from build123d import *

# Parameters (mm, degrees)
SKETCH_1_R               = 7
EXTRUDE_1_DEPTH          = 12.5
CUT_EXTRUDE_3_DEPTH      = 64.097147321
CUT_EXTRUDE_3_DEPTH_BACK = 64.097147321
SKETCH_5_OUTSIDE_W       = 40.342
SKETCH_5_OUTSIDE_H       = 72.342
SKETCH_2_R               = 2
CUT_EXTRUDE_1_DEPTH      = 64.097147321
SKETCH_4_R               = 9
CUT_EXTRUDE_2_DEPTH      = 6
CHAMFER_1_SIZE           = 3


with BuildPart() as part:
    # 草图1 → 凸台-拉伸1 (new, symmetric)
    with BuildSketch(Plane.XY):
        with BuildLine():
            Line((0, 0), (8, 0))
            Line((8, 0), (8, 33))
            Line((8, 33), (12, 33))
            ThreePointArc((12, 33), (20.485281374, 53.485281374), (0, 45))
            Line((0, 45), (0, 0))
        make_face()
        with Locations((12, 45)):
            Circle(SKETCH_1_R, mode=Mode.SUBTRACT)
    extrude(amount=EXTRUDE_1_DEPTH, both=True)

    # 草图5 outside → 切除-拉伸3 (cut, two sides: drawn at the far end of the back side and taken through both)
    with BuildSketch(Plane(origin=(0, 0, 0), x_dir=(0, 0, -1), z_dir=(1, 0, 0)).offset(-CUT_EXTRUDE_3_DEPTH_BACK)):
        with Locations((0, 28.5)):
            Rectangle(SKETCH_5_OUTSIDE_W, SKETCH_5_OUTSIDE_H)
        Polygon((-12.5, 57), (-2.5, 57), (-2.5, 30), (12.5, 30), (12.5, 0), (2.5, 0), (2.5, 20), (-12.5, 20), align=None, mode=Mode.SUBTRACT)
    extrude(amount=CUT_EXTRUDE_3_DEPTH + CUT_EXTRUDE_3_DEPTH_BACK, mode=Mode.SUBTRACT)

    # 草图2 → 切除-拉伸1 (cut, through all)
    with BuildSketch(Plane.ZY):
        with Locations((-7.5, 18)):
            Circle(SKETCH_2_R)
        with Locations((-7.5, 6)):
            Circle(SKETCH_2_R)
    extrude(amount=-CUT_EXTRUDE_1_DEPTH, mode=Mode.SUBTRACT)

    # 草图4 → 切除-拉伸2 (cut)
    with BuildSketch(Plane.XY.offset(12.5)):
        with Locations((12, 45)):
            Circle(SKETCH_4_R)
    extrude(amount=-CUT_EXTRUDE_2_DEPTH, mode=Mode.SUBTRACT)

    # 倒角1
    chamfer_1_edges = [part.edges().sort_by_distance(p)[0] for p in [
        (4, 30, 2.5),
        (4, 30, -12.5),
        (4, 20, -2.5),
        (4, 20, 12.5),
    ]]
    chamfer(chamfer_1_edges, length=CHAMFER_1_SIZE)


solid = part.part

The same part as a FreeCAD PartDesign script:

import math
import FreeCAD as App
import Part
import Sketcher


def edges_at(feature, points):
    """Names of the edges that pass closest to the given points."""
    edges = feature.Shape.Edges
    near = lambda p: min(range(len(edges)), key=lambda i: edges[i].distToShape(Part.Vertex(*p))[0])
    return sorted({f"Edge{near(p) + 1}" for p in points})

doc = App.newDocument("Part")
params = doc.addObject("Spreadsheet::Sheet", "Params")
for row, (alias, value) in enumerate([
    ("sketch1_diameter", "14 mm"),
    ("sketch1_radius", "12 mm"),
    ("sketch1_width", "8 mm"),
    ("sketch1_height", "33 mm"),
    ("pad1_length", "25 mm"),
    ("sketch2_width", "37 mm"),
    ("sketch2_width2", "27 mm"),
    ("sketch2_width3", "30 mm"),
    ("sketch2_height", "10 mm"),
    ("sketch2_height2", "15 mm"),
    ("sketch3_diameter", "4 mm"),
    ("sketch4_diameter", "18 mm"),
    ("pocket3_length", "6 mm"),
    ("chamfer_size", "3 mm"),
], start=1):
    params.set(f"A{row}", alias)
    params.set(f"B{row}", "=" + value)
    params.setAlias(f"B{row}", alias)

body = doc.addObject("PartDesign::Body", "Body")

sketch1 = doc.addObject("Sketcher::SketchObject", "Sketch")
body.addObject(sketch1)
sketch1.AttachmentSupport = (doc.XY_Plane, [""])
sketch1.MapMode = "FlatFace"
sketch1.addGeometry([
    Part.LineSegment(App.Vector(0, 0, 0), App.Vector(8, 0, 0)),
    Part.LineSegment(App.Vector(8, 0, 0), App.Vector(8, 33, 0)),
    Part.LineSegment(App.Vector(8, 33, 0), App.Vector(12, 33, 0)),
    Part.ArcOfCircle(Part.Circle(App.Vector(12, 45, 0), App.Vector(0, 0, 1), 12), math.radians(-90), math.radians(180)),
    Part.LineSegment(App.Vector(0, 45, 0), App.Vector(0, 0, 0)),
    Part.Circle(App.Vector(12, 45, 0), App.Vector(0, 0, 1), 7),
], False)
sketch1.addConstraint([
    Sketcher.Constraint("Coincident", 0, 2, 1, 1),
    Sketcher.Constraint("Coincident", 1, 2, 2, 1),
    Sketcher.Constraint("Tangent", 2, 2, 3, 1),
    Sketcher.Constraint("Tangent", 3, 2, 4, 1),
    Sketcher.Constraint("Coincident", 4, 2, 0, 1),
    Sketcher.Constraint("Horizontal", 0),
    Sketcher.Constraint("Vertical", 1),
    Sketcher.Constraint("Horizontal", 2),
    Sketcher.Constraint("Vertical", 4),
    Sketcher.Constraint("Coincident", 4, 2, -1, 1),
    Sketcher.Constraint("Coincident", 5, 3, 3, 3),
    Sketcher.Constraint("Diameter", 5, 14.0),
    Sketcher.Constraint("Radius", 3, 12.0),
    Sketcher.Constraint("DistanceX", 0, 1, 0, 2, 8.0),
    Sketcher.Constraint("DistanceY", 1, 1, 1, 2, 33.0),
])
sketch1.setExpression("Constraints[11]", "Params.sketch1_diameter")
sketch1.setExpression("Constraints[12]", "Params.sketch1_radius")
sketch1.setExpression("Constraints[13]", "Params.sketch1_width")
sketch1.setExpression("Constraints[14]", "Params.sketch1_height")
pad1 = doc.addObject("PartDesign::Pad", "Pad")
body.addObject(pad1)
pad1.Profile = sketch1
pad1.setExpression("Length", "Params.pad1_length")
pad1.Midplane = True

sketch2 = doc.addObject("Sketcher::SketchObject", "Sketch001")
body.addObject(sketch2)
sketch2.AttachmentSupport = (doc.YZ_Plane, [""])
sketch2.MapMode = "FlatFace"
sketch2.addGeometry([
    Part.LineSegment(App.Vector(64.671, 20.171, 0), App.Vector(-7.671, 20.171, 0)),
    Part.LineSegment(App.Vector(-7.671, 20.171, 0), App.Vector(-7.671, -20.171, 0)),
    Part.LineSegment(App.Vector(-7.671, -20.171, 0), App.Vector(64.671, -20.171, 0)),
    Part.LineSegment(App.Vector(64.671, -20.171, 0), App.Vector(64.671, 20.171, 0)),
    Part.LineSegment(App.Vector(20, 12.5, 0), App.Vector(57, 12.5, 0)),
    Part.LineSegment(App.Vector(57, 12.5, 0), App.Vector(57, 2.5, 0)),
    Part.LineSegment(App.Vector(57, 2.5, 0), App.Vector(30, 2.5, 0)),
    Part.LineSegment(App.Vector(30, 2.5, 0), App.Vector(30, -12.5, 0)),
    Part.LineSegment(App.Vector(30, -12.5, 0), App.Vector(0, -12.5, 0)),
    Part.LineSegment(App.Vector(0, -12.5, 0), App.Vector(0, -2.5, 0)),
    Part.LineSegment(App.Vector(0, -2.5, 0), App.Vector(20, -2.5, 0)),
    Part.LineSegment(App.Vector(20, -2.5, 0), App.Vector(20, 12.5, 0)),
], False)
sketch2.addConstraint([
    Sketcher.Constraint("Coincident", 0, 2, 1, 1),
    Sketcher.Constraint("Coincident", 1, 2, 2, 1),
    Sketcher.Constraint("Coincident", 2, 2, 3, 1),
    Sketcher.Constraint("Coincident", 3, 2, 0, 1),
    Sketcher.Constraint("Coincident", 4, 2, 5, 1),
    Sketcher.Constraint("Coincident", 5, 2, 6, 1),
    Sketcher.Constraint("Coincident", 6, 2, 7, 1),
    Sketcher.Constraint("Coincident", 7, 2, 8, 1),
    Sketcher.Constraint("Coincident", 8, 2, 9, 1),
    Sketcher.Constraint("Coincident", 9, 2, 10, 1),
    Sketcher.Constraint("Coincident", 10, 2, 11, 1),
    Sketcher.Constraint("Coincident", 11, 2, 4, 1),
    Sketcher.Constraint("Horizontal", 0),
    Sketcher.Constraint("Vertical", 1),
    Sketcher.Constraint("Horizontal", 2),
    Sketcher.Constraint("Vertical", 3),
    Sketcher.Constraint("Horizontal", 4),
    Sketcher.Constraint("Vertical", 5),
    Sketcher.Constraint("Horizontal", 6),
    Sketcher.Constraint("Vertical", 7),
    Sketcher.Constraint("Horizontal", 8),
    Sketcher.Constraint("Vertical", 9),
    Sketcher.Constraint("Horizontal", 10),
    Sketcher.Constraint("Vertical", 11),
    Sketcher.Constraint("PointOnObject", 8, 2, -2),
    Sketcher.Constraint("Equal", 5, 9),
    Sketcher.Constraint("DistanceX", 4, 1, 4, 2, 37.0),
    Sketcher.Constraint("DistanceX", 6, 2, 6, 1, 27.0),
    Sketcher.Constraint("DistanceX", 8, 2, 8, 1, 30.0),
    Sketcher.Constraint("DistanceY", 5, 2, 5, 1, 10.0),
    Sketcher.Constraint("DistanceY", 7, 2, 7, 1, 15.0),
    Sketcher.Constraint("DistanceY", -1, 1, 4, 2, 12.5),
    Sketcher.Constraint("DistanceX", 0, 2, 0, 1, 72.342),
    Sketcher.Constraint("DistanceY", 1, 2, 1, 1, 40.342),
    Sketcher.Constraint("DistanceX", 0, 2, -1, 1, 7.671),
    Sketcher.Constraint("DistanceY", -1, 1, 0, 2, 20.171),
])
sketch2.setExpression("Constraints[26]", "Params.sketch2_width")
sketch2.setExpression("Constraints[27]", "Params.sketch2_width2")
sketch2.setExpression("Constraints[28]", "Params.sketch2_width3")
sketch2.setExpression("Constraints[29]", "Params.sketch2_height")
sketch2.setExpression("Constraints[30]", "Params.sketch2_height2")
pocket1 = doc.addObject("PartDesign::Pocket", "Pocket")
body.addObject(pocket1)
pocket1.Profile = sketch2
pocket1.Type = "ThroughAll"
pocket1.Midplane = True

sketch3 = doc.addObject("Sketcher::SketchObject", "Sketch002")
body.addObject(sketch3)
sketch3.AttachmentSupport = (doc.YZ_Plane, [""])
sketch3.MapMode = "FlatFace"
sketch3.addGeometry([
    Part.Circle(App.Vector(18, -7.5, 0), App.Vector(0, 0, 1), 2),
    Part.Circle(App.Vector(6, -7.5, 0), App.Vector(0, 0, 1), 2),
], False)
sketch3.addConstraint([
    Sketcher.Constraint("Equal", 0, 1),
    Sketcher.Constraint("Horizontal", 0, 3, 1, 3),
    Sketcher.Constraint("Diameter", 0, 4.0),
    Sketcher.Constraint("DistanceX", -1, 1, 0, 3, 18.0),
    Sketcher.Constraint("DistanceX", -1, 1, 1, 3, 6.0),
    Sketcher.Constraint("DistanceY", 0, 3, -1, 1, 7.5),
])
sketch3.setExpression("Constraints[2]", "Params.sketch3_diameter")
pocket2 = doc.addObject("PartDesign::Pocket", "Pocket001")
body.addObject(pocket2)
pocket2.Profile = sketch3
pocket2.Type = "ThroughAll"
pocket2.Reversed = True

sketch4 = doc.addObject("Sketcher::SketchObject", "Sketch003")
body.addObject(sketch4)
sketch4.AttachmentSupport = (doc.XY_Plane, [""])
sketch4.MapMode = "FlatFace"
sketch4.AttachmentOffset = App.Placement(App.Vector(0, 0, 12.5), App.Rotation())
sketch4.addGeometry(Part.Circle(App.Vector(12, 45, 0), App.Vector(0, 0, 1), 9), False)
sketch4.addConstraint([
    Sketcher.Constraint("Diameter", 0, 18.0),
    Sketcher.Constraint("DistanceX", -1, 1, 0, 3, 12.0),
    Sketcher.Constraint("DistanceY", -1, 1, 0, 3, 45.0),
])
sketch4.setExpression("Constraints[0]", "Params.sketch4_diameter")
pocket3 = doc.addObject("PartDesign::Pocket", "Pocket002")
body.addObject(pocket3)
pocket3.Profile = sketch4
pocket3.setExpression("Length", "Params.pocket3_length")
doc.recompute()

chamfer = doc.addObject("PartDesign::Chamfer", "Chamfer")
body.addObject(chamfer)
chamfer.Base = (pocket3, edges_at(pocket3, [
    (4, 30, 2.5),
    (4, 30, -12.5),
    (4, 20, -2.5),
    (4, 20, 12.5),
]))
chamfer.setExpression("Size", "Params.chamfer_size")

doc.recompute()
